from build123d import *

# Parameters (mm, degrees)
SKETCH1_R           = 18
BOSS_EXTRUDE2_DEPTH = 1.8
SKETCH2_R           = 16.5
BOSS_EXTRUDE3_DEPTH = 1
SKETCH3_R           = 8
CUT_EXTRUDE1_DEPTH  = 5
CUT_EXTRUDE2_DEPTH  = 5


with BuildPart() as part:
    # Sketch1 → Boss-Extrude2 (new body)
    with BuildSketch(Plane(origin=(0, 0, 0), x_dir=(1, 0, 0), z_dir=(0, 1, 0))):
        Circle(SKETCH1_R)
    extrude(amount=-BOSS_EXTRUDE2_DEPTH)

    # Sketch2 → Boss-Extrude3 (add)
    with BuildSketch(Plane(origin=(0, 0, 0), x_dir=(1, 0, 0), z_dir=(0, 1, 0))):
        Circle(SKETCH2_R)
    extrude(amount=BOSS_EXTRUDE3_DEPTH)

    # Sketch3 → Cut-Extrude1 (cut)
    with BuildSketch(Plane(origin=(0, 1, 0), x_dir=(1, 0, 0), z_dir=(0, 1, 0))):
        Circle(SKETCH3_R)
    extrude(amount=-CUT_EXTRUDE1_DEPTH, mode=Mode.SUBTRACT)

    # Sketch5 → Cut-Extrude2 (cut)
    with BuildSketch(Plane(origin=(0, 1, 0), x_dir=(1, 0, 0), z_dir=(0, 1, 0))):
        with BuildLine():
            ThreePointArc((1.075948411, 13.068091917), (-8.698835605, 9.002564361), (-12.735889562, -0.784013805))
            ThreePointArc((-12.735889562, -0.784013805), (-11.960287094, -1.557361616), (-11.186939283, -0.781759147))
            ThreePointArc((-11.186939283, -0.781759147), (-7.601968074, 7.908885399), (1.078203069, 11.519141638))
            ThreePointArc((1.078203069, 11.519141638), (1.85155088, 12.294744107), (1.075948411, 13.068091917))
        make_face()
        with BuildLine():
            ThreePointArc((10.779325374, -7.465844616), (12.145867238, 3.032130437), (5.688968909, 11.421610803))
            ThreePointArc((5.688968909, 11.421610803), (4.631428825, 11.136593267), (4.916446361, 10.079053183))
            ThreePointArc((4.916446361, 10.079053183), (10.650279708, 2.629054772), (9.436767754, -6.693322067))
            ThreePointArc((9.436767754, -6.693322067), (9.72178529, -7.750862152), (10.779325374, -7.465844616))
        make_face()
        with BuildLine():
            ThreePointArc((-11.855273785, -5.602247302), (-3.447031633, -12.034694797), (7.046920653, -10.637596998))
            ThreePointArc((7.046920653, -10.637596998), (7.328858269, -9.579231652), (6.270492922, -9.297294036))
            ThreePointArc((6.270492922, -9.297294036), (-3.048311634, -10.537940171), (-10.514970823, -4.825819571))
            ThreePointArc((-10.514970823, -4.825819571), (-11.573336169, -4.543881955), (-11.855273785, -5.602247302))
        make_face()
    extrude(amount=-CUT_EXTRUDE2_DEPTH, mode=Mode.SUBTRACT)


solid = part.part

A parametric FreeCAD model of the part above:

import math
import FreeCAD as App
import Part
import Sketcher
from FreeCAD import Vector

doc = App.newDocument("Part")
body = doc.addObject("PartDesign::Body", "Body")

# Sketch on XZ plane
sketch1 = body.newObject("Sketcher::SketchObject", "Sketch")
sketch1.AttachmentSupport = (doc.getObject("XZ_Plane"), [""])
sketch1.MapMode = "FlatFace"
sketch1.addGeometry(Part.Circle(Vector(0, 0, 0), Vector(0, 0, 1), 18), False)
sketch1.addConstraint([
    Sketcher.Constraint("Coincident", 0, 3, -1, 1),
    Sketcher.Constraint("Diameter", 0, 36.0),
])
pad1 = body.newObject("PartDesign::Pad", "Pad")
pad1.Profile = sketch1
pad1.Length = 1.8

# Sketch on XZ plane
sketch2 = body.newObject("Sketcher::SketchObject", "Sketch001")
sketch2.AttachmentSupport = (doc.getObject("XZ_Plane"), [""])
sketch2.MapMode = "FlatFace"
sketch2.addGeometry(Part.Circle(Vector(0, 0, 0), Vector(0, 0, 1), 16), False)
sketch2.addConstraint([
    Sketcher.Constraint("Coincident", 0, 3, -1, 1),
    Sketcher.Constraint("Diameter", 0, 33.0),
])
pad2 = body.newObject("PartDesign::Pad", "Pad001")
pad2.Profile = sketch2
pad2.Length = 1
pad2.Reversed = True

# Sketch on XZ plane
sketch3 = body.newObject("Sketcher::SketchObject", "Sketch002")
sketch3.AttachmentSupport = (doc.getObject("XZ_Plane"), [""])
sketch3.MapMode = "FlatFace"
sketch3.AttachmentOffset = App.Placement(Vector(0, 0, -1), App.Rotation())
sketch3.addGeometry(Part.Circle(Vector(0, 0, 0), Vector(0, 0, 1), 8), False)
sketch3.addConstraint([
    Sketcher.Constraint("Coincident", 0, 3, -1, 1),
    Sketcher.Constraint("Diameter", 0, 16.0),
])
pocket1 = body.newObject("PartDesign::Pocket", "Pocket")
pocket1.Profile = sketch3
pocket1.Length = 5
pocket1.Reversed = True

# Sketch on XZ plane
sketch4 = body.newObject("Sketcher::SketchObject", "Sketch003")
sketch4.AttachmentSupport = (doc.getObject("XZ_Plane"), [""])
sketch4.MapMode = "FlatFace"
sketch4.AttachmentOffset = App.Placement(Vector(0, 0, -1), App.Rotation())
sketch4.addGeometry([
    Part.ArcOfCircle(Part.Circle(Vector(1.1, 0.8, 0), Vector(0, 0, 1), 13.8), math.radians(180), math.radians(270)),  # 0
    Part.ArcOfCircle(Part.Circle(Vector(-12, 0.8, 0), Vector(0, 0, 1), 0.8), math.radians(0), math.radians(180)),  # 1
    Part.ArcOfCircle(Part.Circle(Vector(1.1, 0.8, 0), Vector(0, 0, 1), 12.3), math.radians(180), math.radians(270)),  # 2
    Part.ArcOfCircle(Part.Circle(Vector(1.1, -12.3, 0), Vector(0, 0, 1), 0.8), math.radians(-90), math.radians(90)),  # 3
    Part.ArcOfCircle(Part.Circle(Vector(-1.2, 0.6, 0), Vector(0, 0, 1), 13.8), math.radians(-60), math.radians(30)),  # 4
    Part.ArcOfCircle(Part.Circle(Vector(5.3, -10.8, 0), Vector(0, 0, 1), 0.8), math.radians(120), math.radians(300)),  # 5
    Part.ArcOfCircle(Part.Circle(Vector(-1.2, 0.6, 0), Vector(0, 0, 1), 12.3), math.radians(-60), math.radians(30)),  # 6
    Part.ArcOfCircle(Part.Circle(Vector(10.1, 7.1, 0), Vector(0, 0, 1), 0.8), math.radians(30), math.radians(210)),  # 7
    Part.ArcOfCircle(Part.Circle(Vector(0.1, -1.3, 0), Vector(0, 0, 1), 13.8), math.radians(60), math.radians(150)),  # 8
    Part.ArcOfCircle(Part.Circle(Vector(6.7, 10, 0), Vector(0, 0, 1), 0.8), math.radians(-120), math.radians(60)),  # 9
    Part.ArcOfCircle(Part.Circle(Vector(0.1, -1.3, 0), Vector(0, 0, 1), 12.3), math.radians(60), math.radians(150)),  # 10
    Part.ArcOfCircle(Part.Circle(Vector(-11.2, 5.2, 0), Vector(0, 0, 1), 0.8), math.radians(150), math.radians(330)),  # 11
], False)
sketch4.addConstraint([
    Sketcher.Constraint("Tangent", 0, 1, 1, 2),
    Sketcher.Constraint("Tangent", 1, 1, 2, 1),
    Sketcher.Constraint("Tangent", 2, 2, 3, 2),
    Sketcher.Constraint("Tangent", 3, 1, 0, 2),
    Sketcher.Constraint("Tangent", 4, 1, 5, 2),
    Sketcher.Constraint("Tangent", 5, 1, 6, 1),
    Sketcher.Constraint("Tangent", 6, 2, 7, 2),
    Sketcher.Constraint("Tangent", 7, 1, 4, 2),
    Sketcher.Constraint("Tangent", 8, 1, 9, 2),
    Sketcher.Constraint("Tangent", 9, 1, 10, 1),
    Sketcher.Constraint("Tangent", 10, 2, 11, 2),
    Sketcher.Constraint("Tangent", 11, 1, 8, 2),
    Sketcher.Constraint("Coincident", 2, 3, 0, 3),
    Sketcher.Constraint("Coincident", 6, 3, 4, 3),
    Sketcher.Constraint("Coincident", 10, 3, 8, 3),
    Sketcher.Constraint("Equal", 0, 4),
    Sketcher.Constraint("Equal", 3, 5),
    Sketcher.Constraint("Equal", 4, 8),
    Sketcher.Constraint("Equal", 7, 9),
    Sketcher.Constraint("Radius", 0, 13.831986),
    Sketcher.Constraint("Radius", 1, 0.774476),
    Sketcher.Constraint("DistanceX", -1, 1, 8, 3, 0.113498),
    Sketcher.Constraint("DistanceY", 7, 1, 9, 3, 2.501601),
    Sketcher.Constraint("DistanceY", -1, 1, 0, 3, 0.76388),
    Sketcher.Constraint("DistanceX", 4, 3, -1, 1, 1.209581),
    Sketcher.Constraint("DistanceY", 5, 3, -1, 1, 10.750332),
    Sketcher.Constraint("DistanceX", 0, 1, -1, 1, 12.73589),
    Sketcher.Constraint("DistanceY", -1, 1, 1, 1, 0.781759),
    Sketcher.Constraint("DistanceX", -1, 1, 3, 1, 1.075948),
    Sketcher.Constraint("DistanceX", -1, 1, 4, 1, 5.688969),
    Sketcher.Constraint("DistanceX", -1, 1, 8, 1, 7.046921),
    Sketcher.Constraint("DistanceX", 10, 2, -1, 1, 10.514971),
    Sketcher.Constraint("DistanceY", -1, 1, 10, 2, 4.82582),
])
pocket2 = body.newObject("PartDesign::Pocket", "Pocket001")
pocket2.Profile = sketch4
pocket2.Length = 5
pocket2.Reversed = True

doc.recompute()
